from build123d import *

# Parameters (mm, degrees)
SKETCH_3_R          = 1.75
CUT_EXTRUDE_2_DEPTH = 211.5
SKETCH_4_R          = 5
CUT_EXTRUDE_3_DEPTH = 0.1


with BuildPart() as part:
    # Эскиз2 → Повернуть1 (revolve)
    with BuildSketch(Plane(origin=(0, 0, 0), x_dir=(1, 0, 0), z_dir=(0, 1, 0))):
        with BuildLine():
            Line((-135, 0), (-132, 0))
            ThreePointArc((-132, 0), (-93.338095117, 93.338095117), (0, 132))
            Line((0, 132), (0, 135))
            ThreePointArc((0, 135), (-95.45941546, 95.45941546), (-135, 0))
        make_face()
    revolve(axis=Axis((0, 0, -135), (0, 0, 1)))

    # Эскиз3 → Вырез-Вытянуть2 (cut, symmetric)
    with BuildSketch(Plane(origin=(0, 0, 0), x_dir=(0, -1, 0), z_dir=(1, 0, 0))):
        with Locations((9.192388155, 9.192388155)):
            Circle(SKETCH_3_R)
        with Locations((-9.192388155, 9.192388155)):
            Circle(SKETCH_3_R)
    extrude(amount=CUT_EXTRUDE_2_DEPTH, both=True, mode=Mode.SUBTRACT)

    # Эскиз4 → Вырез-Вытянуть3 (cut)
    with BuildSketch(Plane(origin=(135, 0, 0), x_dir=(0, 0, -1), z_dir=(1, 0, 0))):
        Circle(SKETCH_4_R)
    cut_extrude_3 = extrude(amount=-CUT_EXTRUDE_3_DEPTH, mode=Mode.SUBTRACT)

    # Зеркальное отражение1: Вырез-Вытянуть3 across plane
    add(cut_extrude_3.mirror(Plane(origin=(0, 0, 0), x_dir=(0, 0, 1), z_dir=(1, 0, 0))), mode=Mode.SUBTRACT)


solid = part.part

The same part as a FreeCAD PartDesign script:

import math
import FreeCAD as App
import Part
import Sketcher
from FreeCAD import Vector

doc = App.newDocument("Part")
body = doc.addObject("PartDesign::Body", "Body")

# Sketch on XZ plane
sketch1 = body.newObject("Sketcher::SketchObject", "Sketch")
sketch1.AttachmentSupport = (doc.getObject("XZ_Plane"), [""])
sketch1.MapMode = "FlatFace"
sketch1.addGeometry(Part.LineSegment(Vector(-135, 0, 0), Vector(-132, 0, 0)), False)
sketch1.addGeometry(Part.ArcOfCircle(Part.Circle(Vector(0, 0, 0), Vector(0, 0, 1), 132), math.radians(180), math.radians(270)), False)
sketch1.addGeometry(Part.LineSegment(Vector(0, -132, 0), Vector(0, -135, 0)), False)
sketch1.addGeometry(Part.ArcOfCircle(Part.Circle(Vector(0, 0, 0), Vector(0, 0, 1), 135), math.radians(-180), math.radians(-90)), False)
sketch1.addConstraint(Sketcher.Constraint("Coincident", 0, 2, 1, 1))
sketch1.addConstraint(Sketcher.Constraint("Coincident", 1, 2, 2, 1))
sketch1.addConstraint(Sketcher.Constraint("Coincident", 2, 2, 3, 2))
sketch1.addConstraint(Sketcher.Constraint("Coincident", 3, 1, 0, 1))
sketch1.addConstraint(Sketcher.Constraint("Horizontal", 0))
sketch1.addConstraint(Sketcher.Constraint("Vertical", 2))
sketch1.addConstraint(Sketcher.Constraint("Coincident", 1, 3, -1, 1))
sketch1.addConstraint(Sketcher.Constraint("Coincident", 3, 3, -1, 1))
sketch1.addConstraint(Sketcher.Constraint("PointOnObject", 0, 2, -1))
sketch1.addConstraint(Sketcher.Constraint("PointOnObject", 1, 2, -2))
sketch1.addConstraint(Sketcher.Constraint("Radius", 1, 132.0))
sketch1.addConstraint(Sketcher.Constraint("Radius", 3, 135.0))
revolution = body.newObject("PartDesign::Revolution", "Revolution")
revolution.Profile = sketch1
revolution.ReferenceAxis = (sketch1, ["V_Axis"])
revolution.Angle = 360

# Sketch on YZ plane
sketch2 = body.newObject("Sketcher::SketchObject", "Sketch001")
sketch2.AttachmentSupport = (doc.getObject("YZ_Plane"), [""])
sketch2.MapMode = "FlatFace"
sketch2.addGeometry(Part.Circle(Vector(-9.192388, -9.192388, 0), Vector(0, 0, 1), 1.75), False)
sketch2.addGeometry(Part.Circle(Vector(9.192388, -9.192388, 0), Vector(0, 0, 1), 1.75), False)
sketch2.addConstraint(Sketcher.Constraint("Equal", 0, 1))
sketch2.addConstraint(Sketcher.Constraint("Symmetric", 0, 3, 1, 3, -2))
sketch2.addConstraint(Sketcher.Constraint("Diameter", 0, 3.5))
sketch2.addConstraint(Sketcher.Constraint("DistanceX", 0, 3, -1, 1, 9.192388))
sketch2.addConstraint(Sketcher.Constraint("DistanceY", 0, 3, -1, 1, 9.192388))
pocket1 = body.newObject("PartDesign::Pocket", "Pocket")
pocket1.Profile = sketch2
pocket1.Length = 423
pocket1.Midplane = True

# Sketch on YZ plane
sketch3 = body.newObject("Sketcher::SketchObject", "Sketch002")
sketch3.AttachmentSupport = (doc.getObject("YZ_Plane"), [""])
sketch3.MapMode = "FlatFace"
sketch3.AttachmentOffset = App.Placement(Vector(0, 0, 135), App.Rotation())
sketch3.addGeometry(Part.Circle(Vector(0, 0, 0), Vector(0, 0, 1), 5), False)
sketch3.addConstraint(Sketcher.Constraint("Coincident", 0, 3, -1, 1))
sketch3.addConstraint(Sketcher.Constraint("Diameter", 0, 10.0))
pocket2 = body.newObject("PartDesign::Pocket", "Pocket001")
pocket2.Profile = sketch3
pocket2.Length = 0.1
doc.recompute()

mirrored = body.newObject("PartDesign::Mirrored", "Mirrored")
mirrored.Originals = [pocket2]
mirrored.MirrorPlane = (doc.getObject("YZ_Plane"), [""])
body.Tip = mirrored

doc.recompute()
